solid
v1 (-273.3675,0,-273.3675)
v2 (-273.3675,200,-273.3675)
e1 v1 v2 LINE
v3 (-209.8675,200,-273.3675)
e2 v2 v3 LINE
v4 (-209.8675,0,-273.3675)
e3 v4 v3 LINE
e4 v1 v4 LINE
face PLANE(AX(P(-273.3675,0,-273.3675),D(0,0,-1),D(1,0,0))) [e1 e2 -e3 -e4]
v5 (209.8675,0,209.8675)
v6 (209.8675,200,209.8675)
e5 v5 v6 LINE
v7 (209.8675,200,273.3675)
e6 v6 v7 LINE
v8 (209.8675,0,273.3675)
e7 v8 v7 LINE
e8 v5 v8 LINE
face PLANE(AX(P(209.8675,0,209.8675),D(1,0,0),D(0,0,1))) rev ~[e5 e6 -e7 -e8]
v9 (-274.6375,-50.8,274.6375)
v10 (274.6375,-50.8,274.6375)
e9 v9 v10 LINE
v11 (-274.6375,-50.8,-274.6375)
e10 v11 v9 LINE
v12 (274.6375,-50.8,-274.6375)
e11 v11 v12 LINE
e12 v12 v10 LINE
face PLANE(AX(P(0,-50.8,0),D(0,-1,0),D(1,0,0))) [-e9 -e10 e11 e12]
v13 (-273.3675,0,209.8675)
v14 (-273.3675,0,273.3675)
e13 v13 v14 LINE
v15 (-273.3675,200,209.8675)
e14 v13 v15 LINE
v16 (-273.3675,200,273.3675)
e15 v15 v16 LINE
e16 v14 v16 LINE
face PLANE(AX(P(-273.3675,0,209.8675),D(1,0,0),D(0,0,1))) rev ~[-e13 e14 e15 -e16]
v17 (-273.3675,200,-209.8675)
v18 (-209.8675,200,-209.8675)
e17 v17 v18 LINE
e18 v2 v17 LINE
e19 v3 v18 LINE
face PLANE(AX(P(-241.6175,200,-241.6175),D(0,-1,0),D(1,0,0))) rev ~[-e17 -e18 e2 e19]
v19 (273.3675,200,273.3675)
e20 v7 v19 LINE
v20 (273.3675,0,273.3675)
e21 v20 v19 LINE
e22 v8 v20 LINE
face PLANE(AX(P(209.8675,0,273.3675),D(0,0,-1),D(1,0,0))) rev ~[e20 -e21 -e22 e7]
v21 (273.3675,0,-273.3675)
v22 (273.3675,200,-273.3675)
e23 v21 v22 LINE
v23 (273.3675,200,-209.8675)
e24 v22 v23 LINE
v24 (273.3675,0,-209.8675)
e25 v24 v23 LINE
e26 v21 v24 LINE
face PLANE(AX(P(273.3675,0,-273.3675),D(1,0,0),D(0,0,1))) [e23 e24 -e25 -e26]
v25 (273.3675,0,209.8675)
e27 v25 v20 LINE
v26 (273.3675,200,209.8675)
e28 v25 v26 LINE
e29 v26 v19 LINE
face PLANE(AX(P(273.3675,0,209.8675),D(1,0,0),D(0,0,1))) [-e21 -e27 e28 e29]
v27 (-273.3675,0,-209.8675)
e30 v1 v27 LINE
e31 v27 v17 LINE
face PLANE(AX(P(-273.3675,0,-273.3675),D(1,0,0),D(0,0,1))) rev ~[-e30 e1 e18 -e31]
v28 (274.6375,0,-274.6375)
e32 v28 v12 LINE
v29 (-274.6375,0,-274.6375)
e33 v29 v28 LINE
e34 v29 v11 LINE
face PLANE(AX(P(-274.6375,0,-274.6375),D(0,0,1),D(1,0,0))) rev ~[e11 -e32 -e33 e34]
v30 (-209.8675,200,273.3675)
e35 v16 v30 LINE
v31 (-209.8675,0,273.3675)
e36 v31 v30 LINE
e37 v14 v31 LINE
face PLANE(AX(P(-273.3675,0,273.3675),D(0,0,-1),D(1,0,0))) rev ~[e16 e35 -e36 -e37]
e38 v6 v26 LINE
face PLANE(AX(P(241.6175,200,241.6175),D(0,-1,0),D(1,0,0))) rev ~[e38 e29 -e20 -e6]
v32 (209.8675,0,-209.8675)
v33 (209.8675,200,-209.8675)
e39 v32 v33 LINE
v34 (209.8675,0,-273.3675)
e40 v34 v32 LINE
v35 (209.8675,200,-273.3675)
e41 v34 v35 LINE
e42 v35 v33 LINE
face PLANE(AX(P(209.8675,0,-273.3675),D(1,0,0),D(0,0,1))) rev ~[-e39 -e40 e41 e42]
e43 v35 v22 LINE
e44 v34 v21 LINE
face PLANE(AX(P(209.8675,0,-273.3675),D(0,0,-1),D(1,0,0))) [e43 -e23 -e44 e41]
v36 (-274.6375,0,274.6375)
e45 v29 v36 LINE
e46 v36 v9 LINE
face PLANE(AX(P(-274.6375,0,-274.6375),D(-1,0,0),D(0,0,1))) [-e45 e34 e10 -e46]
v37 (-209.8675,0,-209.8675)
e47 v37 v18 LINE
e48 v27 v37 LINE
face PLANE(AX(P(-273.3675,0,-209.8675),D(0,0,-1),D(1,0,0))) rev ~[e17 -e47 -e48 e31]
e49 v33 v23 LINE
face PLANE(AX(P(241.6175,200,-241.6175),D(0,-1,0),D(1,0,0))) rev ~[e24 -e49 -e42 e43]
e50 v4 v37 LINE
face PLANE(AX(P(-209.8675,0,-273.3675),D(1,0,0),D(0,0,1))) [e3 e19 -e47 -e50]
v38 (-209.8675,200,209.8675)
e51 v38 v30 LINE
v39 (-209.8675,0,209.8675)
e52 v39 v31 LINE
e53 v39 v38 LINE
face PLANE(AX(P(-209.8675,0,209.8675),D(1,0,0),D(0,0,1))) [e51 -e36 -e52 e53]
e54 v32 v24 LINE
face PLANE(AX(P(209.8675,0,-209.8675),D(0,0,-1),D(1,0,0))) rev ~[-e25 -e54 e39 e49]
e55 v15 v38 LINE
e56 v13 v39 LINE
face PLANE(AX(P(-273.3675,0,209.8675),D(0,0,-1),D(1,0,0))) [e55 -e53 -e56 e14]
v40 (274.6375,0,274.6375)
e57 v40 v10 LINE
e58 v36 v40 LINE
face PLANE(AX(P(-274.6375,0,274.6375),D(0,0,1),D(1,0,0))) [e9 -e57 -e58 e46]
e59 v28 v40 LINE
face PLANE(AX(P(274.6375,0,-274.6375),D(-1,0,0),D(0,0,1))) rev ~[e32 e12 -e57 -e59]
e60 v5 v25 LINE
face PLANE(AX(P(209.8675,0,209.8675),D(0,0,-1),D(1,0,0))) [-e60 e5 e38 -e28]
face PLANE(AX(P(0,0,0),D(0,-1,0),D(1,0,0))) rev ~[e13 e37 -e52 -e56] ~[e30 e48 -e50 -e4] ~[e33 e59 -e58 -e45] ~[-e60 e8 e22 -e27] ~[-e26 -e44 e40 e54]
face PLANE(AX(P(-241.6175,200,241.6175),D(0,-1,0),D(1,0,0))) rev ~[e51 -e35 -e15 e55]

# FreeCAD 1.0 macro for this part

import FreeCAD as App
import Part
import Sketcher
Q = App.Units.Quantity


def add_polygon(sketch, points):
    """Adds a closed chain of lines whose ends are joined by coincident constraints."""
    first, n = sketch.GeometryCount, len(points)
    for a, b in zip(points, points[1:] + points[:1]):
        sketch.addGeometry(Part.LineSegment(App.Vector(*a, 0), App.Vector(*b, 0)), False)
    for i in range(n):
        sketch.addConstraint(Sketcher.Constraint("Coincident", first + i, 2, first + (i + 1) % n, 1))

doc = App.newDocument("Part")
params = doc.addObject("Spreadsheet::Sheet", "Params")
for row, (alias, value) in enumerate([
    ("sketch1_width", "21.625 in"),
    ("pad1_length", "2 in"),
    ("sketch2_width", "2.5 in"),
    ("pad2_length", "200 mm"),
], start=1):
    params.set(f"A{row}", alias)
    params.set(f"B{row}", "=" + value)
    params.setAlias(f"B{row}", alias)

body = doc.addObject("PartDesign::Body", "Body")

# Sketch on XZ plane
sketch1 = body.newObject("Sketcher::SketchObject", "Sketch")
sketch1.AttachmentSupport = (doc.getObject("XZ_Plane"), [""])
sketch1.MapMode = "FlatFace"
add_polygon(sketch1, [(-274.6375, 274.6375), (-274.6375, -274.6375), (274.6375, -274.6375), (274.6375, 274.6375)])  # lines 0-3
sketch1.addConstraint([
    Sketcher.Constraint("Vertical", 0),
    Sketcher.Constraint("Horizontal", 1),
    Sketcher.Constraint("Vertical", 2),
    Sketcher.Constraint("Horizontal", 3),
    Sketcher.Constraint("Symmetric", 0, 2, 2, 2, -1, 1),
    Sketcher.Constraint("Equal", 3, 0),
    Sketcher.Constraint("DistanceX", 1, 1, 1, 2, Q("21.625 in")),
])
sketch1.setExpression("Constraints[10]", "Params.sketch1_width")
pad1 = body.newObject("PartDesign::Pad", "Pad")
pad1.Profile = sketch1
pad1.setExpression("Length", "Params.pad1_length")

# Sketch on XZ plane
sketch2 = body.newObject("Sketcher::SketchObject", "Sketch001")
sketch2.AttachmentSupport = (doc.getObject("XZ_Plane"), [""])
sketch2.MapMode = "FlatFace"
add_polygon(sketch2, [(-273.3675, 273.3675), (-273.3675, 209.8675), (-209.8675, 209.8675), (-209.8675, 273.3675)])  # lines 0-3
add_polygon(sketch2, [(209.8675, 273.3675), (209.8675, 209.8675), (273.3675, 209.8675), (273.3675, 273.3675)])  # lines 4-7
add_polygon(sketch2, [(209.8675, -209.8675), (209.8675, -273.3675), (273.3675, -273.3675), (273.3675, -209.8675)])  # lines 8-11
add_polygon(sketch2, [(-273.3675, -209.8675), (-273.3675, -273.3675), (-209.8675, -273.3675), (-209.8675, -209.8675)])  # lines 12-15
sketch2.addConstraint([
    Sketcher.Constraint("Vertical", 0),
    Sketcher.Constraint("Horizontal", 1),
    Sketcher.Constraint("Vertical", 2),
    Sketcher.Constraint("Horizontal", 3),
    Sketcher.Constraint("Vertical", 4),
    Sketcher.Constraint("Horizontal", 5),
    Sketcher.Constraint("Vertical", 6),
    Sketcher.Constraint("Horizontal", 7),
    Sketcher.Constraint("Vertical", 8),
    Sketcher.Constraint("Horizontal", 9),
    Sketcher.Constraint("Vertical", 10),
    Sketcher.Constraint("Horizontal", 11),
    Sketcher.Constraint("Vertical", 12),
    Sketcher.Constraint("Horizontal", 13),
    Sketcher.Constraint("Vertical", 14),
    Sketcher.Constraint("Horizontal", 15),
    Sketcher.Constraint("Symmetric", 2, 2, 8, 2, -1, 1),
    Sketcher.Constraint("Symmetric", 0, 2, 10, 2, -1, 1),
    Sketcher.Constraint("Symmetric", 6, 2, 12, 2, -1, 1),
    Sketcher.Constraint("Symmetric", 4, 2, 14, 2, -1, 1),
    Sketcher.Constraint("Symmetric", 1, 2, 4, 2, -2),
    Sketcher.Constraint("Symmetric", 3, 2, 6, 2, -2),
    Sketcher.Constraint("Equal", 15, 0),
    Sketcher.Constraint("DistanceX", 1, 1, 1, 2, Q("2.5 in")),
    Sketcher.Constraint("DistanceX", 1, 2, 4, 2, Q("16.525 in")),
    Sketcher.Constraint("DistanceY", 8, 2, 4, 2, Q("19.025 in")),
])
sketch2.setExpression("Constraints[39]", "Params.sketch2_width")
pad2 = body.newObject("PartDesign::Pad", "Pad001")
pad2.Profile = sketch2
pad2.setExpression("Length", "Params.pad2_length")
pad2.Reversed = True

doc.recompute()
